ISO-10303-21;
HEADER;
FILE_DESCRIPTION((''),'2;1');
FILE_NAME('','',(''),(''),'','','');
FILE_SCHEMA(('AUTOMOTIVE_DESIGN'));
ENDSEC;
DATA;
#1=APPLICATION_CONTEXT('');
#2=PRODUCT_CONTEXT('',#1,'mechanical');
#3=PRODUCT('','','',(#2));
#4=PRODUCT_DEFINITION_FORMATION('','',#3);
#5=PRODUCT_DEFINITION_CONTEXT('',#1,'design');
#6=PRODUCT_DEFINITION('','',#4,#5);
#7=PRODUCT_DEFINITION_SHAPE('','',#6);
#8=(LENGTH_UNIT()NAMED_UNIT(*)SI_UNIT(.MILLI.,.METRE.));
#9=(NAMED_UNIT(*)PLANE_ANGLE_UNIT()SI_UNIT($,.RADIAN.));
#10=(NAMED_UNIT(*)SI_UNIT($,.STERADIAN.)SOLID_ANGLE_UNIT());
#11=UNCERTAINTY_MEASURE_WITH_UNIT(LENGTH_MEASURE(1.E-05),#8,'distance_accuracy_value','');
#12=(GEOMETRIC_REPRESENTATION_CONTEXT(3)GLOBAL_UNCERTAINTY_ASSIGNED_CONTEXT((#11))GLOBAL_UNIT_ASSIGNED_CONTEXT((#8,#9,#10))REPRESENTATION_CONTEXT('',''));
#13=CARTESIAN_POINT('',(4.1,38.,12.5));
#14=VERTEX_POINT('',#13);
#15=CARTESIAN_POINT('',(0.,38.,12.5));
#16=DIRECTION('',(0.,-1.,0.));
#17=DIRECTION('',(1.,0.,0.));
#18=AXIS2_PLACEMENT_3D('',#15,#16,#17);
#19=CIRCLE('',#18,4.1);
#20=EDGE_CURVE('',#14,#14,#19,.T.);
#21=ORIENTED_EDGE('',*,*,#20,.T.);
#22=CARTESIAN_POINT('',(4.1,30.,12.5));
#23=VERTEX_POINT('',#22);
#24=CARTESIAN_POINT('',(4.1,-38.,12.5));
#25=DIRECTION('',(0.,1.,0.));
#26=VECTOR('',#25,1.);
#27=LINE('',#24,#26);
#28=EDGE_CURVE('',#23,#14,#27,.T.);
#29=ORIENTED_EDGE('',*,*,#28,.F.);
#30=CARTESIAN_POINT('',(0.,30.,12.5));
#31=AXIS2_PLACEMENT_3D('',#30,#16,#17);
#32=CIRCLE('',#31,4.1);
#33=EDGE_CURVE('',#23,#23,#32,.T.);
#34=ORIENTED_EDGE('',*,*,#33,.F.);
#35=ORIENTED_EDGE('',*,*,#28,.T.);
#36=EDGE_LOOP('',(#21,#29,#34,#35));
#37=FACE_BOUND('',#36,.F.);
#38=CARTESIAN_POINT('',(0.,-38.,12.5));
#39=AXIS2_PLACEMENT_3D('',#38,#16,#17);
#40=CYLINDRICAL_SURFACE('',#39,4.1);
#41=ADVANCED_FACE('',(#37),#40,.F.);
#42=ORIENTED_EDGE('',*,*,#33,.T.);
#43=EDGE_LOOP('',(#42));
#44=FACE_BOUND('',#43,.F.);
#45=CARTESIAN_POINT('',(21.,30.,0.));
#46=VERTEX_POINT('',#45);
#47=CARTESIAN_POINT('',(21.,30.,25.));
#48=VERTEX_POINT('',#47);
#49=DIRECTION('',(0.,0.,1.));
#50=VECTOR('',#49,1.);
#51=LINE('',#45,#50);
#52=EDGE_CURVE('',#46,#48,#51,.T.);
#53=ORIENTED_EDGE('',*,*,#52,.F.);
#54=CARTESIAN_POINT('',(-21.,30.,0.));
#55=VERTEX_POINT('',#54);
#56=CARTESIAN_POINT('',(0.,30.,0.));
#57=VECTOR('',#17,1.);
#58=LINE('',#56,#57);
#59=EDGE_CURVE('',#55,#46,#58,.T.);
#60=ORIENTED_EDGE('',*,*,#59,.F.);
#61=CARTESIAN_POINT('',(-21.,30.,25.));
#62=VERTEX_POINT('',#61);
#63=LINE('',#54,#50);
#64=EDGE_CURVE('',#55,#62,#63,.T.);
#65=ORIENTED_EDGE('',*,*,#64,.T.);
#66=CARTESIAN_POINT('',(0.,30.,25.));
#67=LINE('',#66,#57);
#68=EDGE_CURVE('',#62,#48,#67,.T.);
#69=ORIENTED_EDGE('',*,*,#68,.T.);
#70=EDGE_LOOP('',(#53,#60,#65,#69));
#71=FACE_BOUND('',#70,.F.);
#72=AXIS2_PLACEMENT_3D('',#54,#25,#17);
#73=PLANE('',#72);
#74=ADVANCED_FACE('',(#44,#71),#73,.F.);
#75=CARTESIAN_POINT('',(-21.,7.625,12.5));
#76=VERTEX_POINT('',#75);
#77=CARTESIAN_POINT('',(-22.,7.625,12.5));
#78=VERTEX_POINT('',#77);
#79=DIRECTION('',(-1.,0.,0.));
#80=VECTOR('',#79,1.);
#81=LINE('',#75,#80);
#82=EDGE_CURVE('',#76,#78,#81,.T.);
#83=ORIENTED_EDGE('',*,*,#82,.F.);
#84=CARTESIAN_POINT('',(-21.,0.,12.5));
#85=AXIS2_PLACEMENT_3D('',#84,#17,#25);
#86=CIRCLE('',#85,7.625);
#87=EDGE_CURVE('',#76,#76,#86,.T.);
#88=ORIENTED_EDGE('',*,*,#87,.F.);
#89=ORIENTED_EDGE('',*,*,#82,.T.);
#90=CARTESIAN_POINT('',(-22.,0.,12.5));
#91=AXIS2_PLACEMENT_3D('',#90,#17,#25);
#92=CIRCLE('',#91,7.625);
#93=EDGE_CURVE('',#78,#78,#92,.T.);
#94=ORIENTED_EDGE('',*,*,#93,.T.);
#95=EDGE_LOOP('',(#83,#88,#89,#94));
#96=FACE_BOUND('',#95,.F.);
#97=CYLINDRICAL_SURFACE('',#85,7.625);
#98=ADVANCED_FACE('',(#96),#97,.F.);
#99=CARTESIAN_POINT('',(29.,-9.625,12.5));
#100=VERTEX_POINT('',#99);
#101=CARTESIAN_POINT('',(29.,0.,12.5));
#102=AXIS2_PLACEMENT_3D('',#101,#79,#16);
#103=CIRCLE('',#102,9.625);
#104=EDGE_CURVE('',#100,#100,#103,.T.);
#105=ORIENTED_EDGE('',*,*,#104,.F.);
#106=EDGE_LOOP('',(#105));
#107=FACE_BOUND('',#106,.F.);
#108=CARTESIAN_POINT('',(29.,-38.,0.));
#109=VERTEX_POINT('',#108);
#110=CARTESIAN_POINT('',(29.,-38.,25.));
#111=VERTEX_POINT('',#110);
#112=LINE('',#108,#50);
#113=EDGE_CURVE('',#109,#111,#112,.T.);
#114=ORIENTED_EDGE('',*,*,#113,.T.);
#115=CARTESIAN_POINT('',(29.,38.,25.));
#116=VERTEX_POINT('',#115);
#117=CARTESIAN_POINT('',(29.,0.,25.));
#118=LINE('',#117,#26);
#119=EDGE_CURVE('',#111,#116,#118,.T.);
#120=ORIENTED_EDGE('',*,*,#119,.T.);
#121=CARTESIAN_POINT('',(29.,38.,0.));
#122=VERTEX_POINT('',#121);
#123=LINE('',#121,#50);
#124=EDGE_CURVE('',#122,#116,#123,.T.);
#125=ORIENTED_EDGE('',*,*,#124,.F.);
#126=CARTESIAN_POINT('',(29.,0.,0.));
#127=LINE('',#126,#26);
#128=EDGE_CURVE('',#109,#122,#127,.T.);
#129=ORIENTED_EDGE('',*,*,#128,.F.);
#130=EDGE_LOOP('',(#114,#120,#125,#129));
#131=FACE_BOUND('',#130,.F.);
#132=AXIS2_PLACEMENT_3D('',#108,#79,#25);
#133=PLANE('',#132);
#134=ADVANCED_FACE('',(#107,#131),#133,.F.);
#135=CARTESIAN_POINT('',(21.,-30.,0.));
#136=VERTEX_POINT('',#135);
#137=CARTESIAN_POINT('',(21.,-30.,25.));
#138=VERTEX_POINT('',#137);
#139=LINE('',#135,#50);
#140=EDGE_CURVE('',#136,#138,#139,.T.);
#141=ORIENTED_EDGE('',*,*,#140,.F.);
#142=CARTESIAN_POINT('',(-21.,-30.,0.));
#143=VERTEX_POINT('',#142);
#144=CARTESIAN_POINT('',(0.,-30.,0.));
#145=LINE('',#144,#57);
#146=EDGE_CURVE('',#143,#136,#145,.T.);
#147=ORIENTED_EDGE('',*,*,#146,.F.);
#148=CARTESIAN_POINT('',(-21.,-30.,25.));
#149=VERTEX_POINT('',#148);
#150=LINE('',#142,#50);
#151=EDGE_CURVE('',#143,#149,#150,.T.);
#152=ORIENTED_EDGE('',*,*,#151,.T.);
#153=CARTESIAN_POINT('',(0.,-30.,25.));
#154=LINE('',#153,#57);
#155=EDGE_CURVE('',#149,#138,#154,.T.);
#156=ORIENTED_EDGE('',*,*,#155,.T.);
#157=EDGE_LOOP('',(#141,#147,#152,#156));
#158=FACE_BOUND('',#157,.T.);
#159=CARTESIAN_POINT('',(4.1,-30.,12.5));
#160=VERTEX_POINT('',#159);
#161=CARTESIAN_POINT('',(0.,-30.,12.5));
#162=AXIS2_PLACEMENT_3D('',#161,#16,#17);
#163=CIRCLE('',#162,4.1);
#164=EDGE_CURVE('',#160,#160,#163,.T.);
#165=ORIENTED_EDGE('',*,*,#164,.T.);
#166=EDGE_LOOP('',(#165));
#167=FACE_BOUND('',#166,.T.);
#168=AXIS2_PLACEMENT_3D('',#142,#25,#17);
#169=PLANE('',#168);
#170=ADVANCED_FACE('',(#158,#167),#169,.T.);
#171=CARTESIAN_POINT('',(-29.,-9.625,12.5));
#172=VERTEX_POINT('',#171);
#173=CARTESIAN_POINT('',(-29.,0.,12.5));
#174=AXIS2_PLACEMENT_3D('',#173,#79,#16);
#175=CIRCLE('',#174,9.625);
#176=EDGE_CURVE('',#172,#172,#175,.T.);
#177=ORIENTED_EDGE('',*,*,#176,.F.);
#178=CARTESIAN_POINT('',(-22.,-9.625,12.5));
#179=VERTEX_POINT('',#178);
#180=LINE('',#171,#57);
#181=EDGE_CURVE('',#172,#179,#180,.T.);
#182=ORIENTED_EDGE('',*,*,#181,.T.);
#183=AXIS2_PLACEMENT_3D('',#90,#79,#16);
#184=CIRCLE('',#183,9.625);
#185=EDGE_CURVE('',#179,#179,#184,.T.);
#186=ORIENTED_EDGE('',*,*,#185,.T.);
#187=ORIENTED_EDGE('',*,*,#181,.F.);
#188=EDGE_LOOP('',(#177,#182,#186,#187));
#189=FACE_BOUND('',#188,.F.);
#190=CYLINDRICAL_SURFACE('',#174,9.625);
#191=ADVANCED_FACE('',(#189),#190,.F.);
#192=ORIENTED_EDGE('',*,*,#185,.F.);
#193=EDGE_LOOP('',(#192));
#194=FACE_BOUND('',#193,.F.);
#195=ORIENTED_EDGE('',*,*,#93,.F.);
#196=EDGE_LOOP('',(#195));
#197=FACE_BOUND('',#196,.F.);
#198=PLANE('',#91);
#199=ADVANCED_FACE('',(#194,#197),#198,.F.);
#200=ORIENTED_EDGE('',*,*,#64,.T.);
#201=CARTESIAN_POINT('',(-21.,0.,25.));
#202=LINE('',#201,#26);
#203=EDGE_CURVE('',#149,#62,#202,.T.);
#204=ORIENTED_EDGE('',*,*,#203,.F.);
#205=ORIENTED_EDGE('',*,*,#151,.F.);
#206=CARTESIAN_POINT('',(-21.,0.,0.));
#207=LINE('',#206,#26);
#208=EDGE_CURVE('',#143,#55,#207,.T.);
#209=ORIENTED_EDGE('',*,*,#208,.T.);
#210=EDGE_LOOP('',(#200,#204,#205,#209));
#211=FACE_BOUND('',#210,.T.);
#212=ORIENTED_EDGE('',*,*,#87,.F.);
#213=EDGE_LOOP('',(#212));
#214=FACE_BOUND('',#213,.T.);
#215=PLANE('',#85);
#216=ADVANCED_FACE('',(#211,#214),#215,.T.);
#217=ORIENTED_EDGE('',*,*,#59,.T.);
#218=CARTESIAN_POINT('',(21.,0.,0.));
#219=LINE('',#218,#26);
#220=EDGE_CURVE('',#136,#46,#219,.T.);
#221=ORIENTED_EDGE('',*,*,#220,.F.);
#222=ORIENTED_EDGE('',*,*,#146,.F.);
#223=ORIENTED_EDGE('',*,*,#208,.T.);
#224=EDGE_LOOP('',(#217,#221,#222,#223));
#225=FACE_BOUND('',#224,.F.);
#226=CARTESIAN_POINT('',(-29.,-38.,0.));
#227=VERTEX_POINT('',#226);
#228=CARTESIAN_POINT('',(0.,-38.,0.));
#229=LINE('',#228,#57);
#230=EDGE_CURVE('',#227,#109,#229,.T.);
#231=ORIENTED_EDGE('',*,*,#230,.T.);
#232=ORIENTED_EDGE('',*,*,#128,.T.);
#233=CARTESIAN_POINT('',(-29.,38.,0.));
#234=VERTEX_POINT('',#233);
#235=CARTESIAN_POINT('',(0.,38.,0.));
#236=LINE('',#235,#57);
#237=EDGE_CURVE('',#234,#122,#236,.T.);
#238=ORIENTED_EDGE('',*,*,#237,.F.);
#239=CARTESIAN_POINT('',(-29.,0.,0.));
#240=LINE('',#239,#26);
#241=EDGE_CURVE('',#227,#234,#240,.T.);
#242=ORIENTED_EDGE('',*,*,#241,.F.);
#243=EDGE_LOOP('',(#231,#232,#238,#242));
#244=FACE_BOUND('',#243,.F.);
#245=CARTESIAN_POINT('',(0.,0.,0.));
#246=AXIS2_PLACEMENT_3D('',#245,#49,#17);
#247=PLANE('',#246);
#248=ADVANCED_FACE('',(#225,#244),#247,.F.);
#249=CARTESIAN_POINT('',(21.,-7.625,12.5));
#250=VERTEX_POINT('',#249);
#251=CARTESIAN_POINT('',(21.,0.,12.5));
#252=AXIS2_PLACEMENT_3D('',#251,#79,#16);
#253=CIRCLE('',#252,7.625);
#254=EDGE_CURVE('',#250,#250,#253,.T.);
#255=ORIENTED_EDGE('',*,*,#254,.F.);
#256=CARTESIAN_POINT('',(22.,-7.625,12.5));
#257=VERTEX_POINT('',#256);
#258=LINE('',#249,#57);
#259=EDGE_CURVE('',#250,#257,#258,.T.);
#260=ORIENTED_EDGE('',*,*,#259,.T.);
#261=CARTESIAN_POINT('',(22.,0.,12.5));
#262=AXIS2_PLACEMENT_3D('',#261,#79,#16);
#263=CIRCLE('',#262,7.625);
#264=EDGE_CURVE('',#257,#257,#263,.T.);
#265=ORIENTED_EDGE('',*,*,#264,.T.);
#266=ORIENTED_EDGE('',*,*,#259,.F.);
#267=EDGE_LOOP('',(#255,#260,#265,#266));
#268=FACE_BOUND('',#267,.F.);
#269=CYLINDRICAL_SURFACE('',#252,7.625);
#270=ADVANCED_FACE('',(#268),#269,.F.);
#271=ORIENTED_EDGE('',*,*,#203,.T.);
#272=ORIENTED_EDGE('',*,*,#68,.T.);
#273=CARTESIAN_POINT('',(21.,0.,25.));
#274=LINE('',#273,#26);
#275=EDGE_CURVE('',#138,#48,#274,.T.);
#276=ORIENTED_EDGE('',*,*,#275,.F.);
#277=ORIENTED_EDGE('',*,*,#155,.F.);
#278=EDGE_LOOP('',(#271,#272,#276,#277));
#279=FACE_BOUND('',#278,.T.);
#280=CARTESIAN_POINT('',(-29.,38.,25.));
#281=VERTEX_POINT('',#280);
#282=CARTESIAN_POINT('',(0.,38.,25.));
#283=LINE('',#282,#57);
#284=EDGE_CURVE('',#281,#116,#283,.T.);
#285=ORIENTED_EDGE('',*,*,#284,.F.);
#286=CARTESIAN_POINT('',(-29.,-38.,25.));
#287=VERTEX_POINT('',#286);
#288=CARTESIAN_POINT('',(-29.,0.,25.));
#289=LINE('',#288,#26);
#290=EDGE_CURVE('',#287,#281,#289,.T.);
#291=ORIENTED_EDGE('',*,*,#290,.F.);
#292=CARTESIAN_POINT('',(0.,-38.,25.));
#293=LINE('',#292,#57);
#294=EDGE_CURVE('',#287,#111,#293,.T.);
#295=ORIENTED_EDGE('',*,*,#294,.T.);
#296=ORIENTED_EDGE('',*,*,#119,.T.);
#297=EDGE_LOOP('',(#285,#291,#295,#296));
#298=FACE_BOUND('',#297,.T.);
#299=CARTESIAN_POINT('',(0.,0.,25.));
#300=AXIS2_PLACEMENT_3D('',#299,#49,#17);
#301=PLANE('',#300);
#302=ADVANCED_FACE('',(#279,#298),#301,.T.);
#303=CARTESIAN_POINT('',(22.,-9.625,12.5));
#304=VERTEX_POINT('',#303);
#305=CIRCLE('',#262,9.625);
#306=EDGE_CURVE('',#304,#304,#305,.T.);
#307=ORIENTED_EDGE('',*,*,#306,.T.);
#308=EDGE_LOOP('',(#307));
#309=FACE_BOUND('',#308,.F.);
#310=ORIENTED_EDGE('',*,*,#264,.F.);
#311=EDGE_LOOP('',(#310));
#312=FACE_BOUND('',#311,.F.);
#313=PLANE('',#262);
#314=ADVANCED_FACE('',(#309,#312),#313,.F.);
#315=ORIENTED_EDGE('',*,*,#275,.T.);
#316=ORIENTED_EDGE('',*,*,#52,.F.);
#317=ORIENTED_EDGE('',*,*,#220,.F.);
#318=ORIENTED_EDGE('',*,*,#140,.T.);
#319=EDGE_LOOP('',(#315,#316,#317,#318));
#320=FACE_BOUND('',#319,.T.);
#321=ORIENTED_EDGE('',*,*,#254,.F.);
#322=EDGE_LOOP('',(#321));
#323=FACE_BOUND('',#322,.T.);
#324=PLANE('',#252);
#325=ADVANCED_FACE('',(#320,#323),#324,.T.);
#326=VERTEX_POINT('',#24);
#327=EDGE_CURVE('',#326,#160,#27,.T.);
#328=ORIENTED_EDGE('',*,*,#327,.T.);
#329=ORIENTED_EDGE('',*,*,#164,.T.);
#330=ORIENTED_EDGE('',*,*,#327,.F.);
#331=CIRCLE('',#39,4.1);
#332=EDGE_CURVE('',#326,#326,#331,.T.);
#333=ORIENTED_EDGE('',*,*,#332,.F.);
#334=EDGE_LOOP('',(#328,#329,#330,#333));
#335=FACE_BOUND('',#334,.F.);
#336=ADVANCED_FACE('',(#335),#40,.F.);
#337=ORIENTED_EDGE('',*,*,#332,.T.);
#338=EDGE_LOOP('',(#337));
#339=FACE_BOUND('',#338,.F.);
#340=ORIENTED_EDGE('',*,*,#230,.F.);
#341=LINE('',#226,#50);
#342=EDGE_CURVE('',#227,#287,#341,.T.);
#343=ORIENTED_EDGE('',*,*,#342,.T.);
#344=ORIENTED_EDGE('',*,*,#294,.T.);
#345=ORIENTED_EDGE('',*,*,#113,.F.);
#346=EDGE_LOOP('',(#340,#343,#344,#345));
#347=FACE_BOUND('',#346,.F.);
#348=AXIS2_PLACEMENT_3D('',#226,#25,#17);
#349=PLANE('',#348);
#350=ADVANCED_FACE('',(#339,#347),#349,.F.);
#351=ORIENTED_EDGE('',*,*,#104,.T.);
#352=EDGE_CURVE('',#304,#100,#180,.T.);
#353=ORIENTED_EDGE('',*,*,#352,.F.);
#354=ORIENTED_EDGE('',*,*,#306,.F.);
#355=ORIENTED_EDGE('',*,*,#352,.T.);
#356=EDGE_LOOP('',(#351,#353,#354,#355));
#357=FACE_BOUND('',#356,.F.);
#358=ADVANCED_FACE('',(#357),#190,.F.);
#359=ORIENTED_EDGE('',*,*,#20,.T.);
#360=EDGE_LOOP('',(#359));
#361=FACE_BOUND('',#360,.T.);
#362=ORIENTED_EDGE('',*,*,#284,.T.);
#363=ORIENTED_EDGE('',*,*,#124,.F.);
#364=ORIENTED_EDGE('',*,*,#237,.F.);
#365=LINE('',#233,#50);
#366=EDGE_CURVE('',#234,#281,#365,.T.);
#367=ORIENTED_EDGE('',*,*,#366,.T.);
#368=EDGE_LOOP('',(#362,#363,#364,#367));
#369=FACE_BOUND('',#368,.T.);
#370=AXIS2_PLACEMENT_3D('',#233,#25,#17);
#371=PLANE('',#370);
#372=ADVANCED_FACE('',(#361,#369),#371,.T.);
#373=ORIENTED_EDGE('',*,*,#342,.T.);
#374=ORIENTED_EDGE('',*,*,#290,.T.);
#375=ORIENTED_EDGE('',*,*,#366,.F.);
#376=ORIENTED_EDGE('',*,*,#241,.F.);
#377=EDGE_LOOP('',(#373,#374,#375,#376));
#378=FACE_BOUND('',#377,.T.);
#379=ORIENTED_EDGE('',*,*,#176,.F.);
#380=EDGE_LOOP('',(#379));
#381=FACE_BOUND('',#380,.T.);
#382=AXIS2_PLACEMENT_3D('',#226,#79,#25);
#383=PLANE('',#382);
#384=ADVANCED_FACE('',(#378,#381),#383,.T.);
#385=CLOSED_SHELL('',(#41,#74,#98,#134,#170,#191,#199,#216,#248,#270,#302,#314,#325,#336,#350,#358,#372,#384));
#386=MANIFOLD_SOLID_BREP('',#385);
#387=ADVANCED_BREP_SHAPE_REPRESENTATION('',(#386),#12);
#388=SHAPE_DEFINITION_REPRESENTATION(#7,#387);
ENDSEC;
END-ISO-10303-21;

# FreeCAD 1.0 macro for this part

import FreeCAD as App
import Part
import Sketcher

V = App.Vector

doc = App.newDocument("Part")
body = doc.addObject("PartDesign::Body", "Body")

# Sketch on XY plane
sketch1 = body.newObject("Sketcher::SketchObject", "Sketch")
sketch1.AttachmentSupport = (doc.getObject("XY_Plane"), [""])
sketch1.MapMode = "FlatFace"
sketch1.addGeometry([
    Part.LineSegment(V(-29, 38, 0), V(-29, -38, 0)),  # 0
    Part.LineSegment(V(-29, -38, 0), V(29, -38, 0)),  # 1
    Part.LineSegment(V(29, -38, 0), V(29, 38, 0)),  # 2
    Part.LineSegment(V(29, 38, 0), V(-29, 38, 0)),  # 3
    Part.LineSegment(V(21, -30, 0), V(-21, -30, 0)),  # 4
    Part.LineSegment(V(-21, -30, 0), V(-21, 30, 0)),  # 5
    Part.LineSegment(V(-21, 30, 0), V(21, 30, 0)),  # 6
    Part.LineSegment(V(21, 30, 0), V(21, -30, 0)),  # 7
], False)
sketch1.addConstraint([
    Sketcher.Constraint("Coincident", 0, 2, 1, 1),
    Sketcher.Constraint("Coincident", 1, 2, 2, 1),
    Sketcher.Constraint("Coincident", 2, 2, 3, 1),
    Sketcher.Constraint("Coincident", 3, 2, 0, 1),
    Sketcher.Constraint("Coincident", 4, 2, 5, 1),
    Sketcher.Constraint("Coincident", 5, 2, 6, 1),
    Sketcher.Constraint("Coincident", 6, 2, 7, 1),
    Sketcher.Constraint("Coincident", 7, 2, 4, 1),
    Sketcher.Constraint("Vertical", 0),
    Sketcher.Constraint("Horizontal", 1),
    Sketcher.Constraint("Vertical", 2),
    Sketcher.Constraint("Horizontal", 3),
    Sketcher.Constraint("Horizontal", 4),
    Sketcher.Constraint("Vertical", 5),
    Sketcher.Constraint("Horizontal", 6),
    Sketcher.Constraint("Vertical", 7),
    Sketcher.Constraint("Symmetric", 0, 2, 2, 2, -1, 1),
    Sketcher.Constraint("Symmetric", 4, 2, 6, 2, -1, 1),
    Sketcher.Constraint("DistanceX", 1, 1, 1, 2, 58.0),
    Sketcher.Constraint("DistanceX", 4, 2, 4, 1, 42.0),
    Sketcher.Constraint("DistanceY", 0, 2, 0, 1, 76.0),
    Sketcher.Constraint("DistanceY", 5, 1, 5, 2, 60.0),
])
pad1 = body.newObject("PartDesign::Pad", "Pad")
pad1.Profile = sketch1
pad1.Length = 25

# Sketch on YZ plane
sketch2 = body.newObject("Sketcher::SketchObject", "Sketch001")
sketch2.AttachmentSupport = (doc.getObject("YZ_Plane"), [""])
sketch2.MapMode = "FlatFace"
sketch2.AttachmentOffset = App.Placement(V(0, 0, -29), App.Rotation())
sketch2.addGeometry(Part.Circle(V(0, 12, 0), V(0, 0, 1), 10), False)
sketch2.addConstraint([
    Sketcher.Constraint("PointOnObject", 0, 3, -2),
    Sketcher.Constraint("Diameter", 0, 19.25),
    Sketcher.Constraint("DistanceY", -1, 1, 0, 3, 12.5),
])
pocket1 = body.newObject("PartDesign::Pocket", "Pocket")
pocket1.Profile = sketch2
pocket1.Type = "ThroughAll"
pocket1.Reversed = True

# Sketch on XZ plane
sketch3 = body.newObject("Sketcher::SketchObject", "Sketch002")
sketch3.AttachmentSupport = (doc.getObject("XZ_Plane"), [""])
sketch3.MapMode = "FlatFace"
sketch3.AttachmentOffset = App.Placement(V(0, 0, 38), App.Rotation())
sketch3.addGeometry(Part.Circle(V(0, 12.5, 0), V(0, 0, 1), 4.1), False)
sketch3.addConstraint([
    Sketcher.Constraint("PointOnObject", 0, 3, -2),
    Sketcher.Constraint("Diameter", 0, 8.2),
    Sketcher.Constraint("DistanceY", -1, 1, 0, 3, 12.5),
])
pocket2 = body.newObject("PartDesign::Pocket", "Pocket001")
pocket2.Profile = sketch3
pocket2.Type = "ThroughAll"

# Sketch on YZ plane
sketch4 = body.newObject("Sketcher::SketchObject", "Sketch003")
sketch4.AttachmentSupport = (doc.getObject("YZ_Plane"), [""])
sketch4.MapMode = "FlatFace"
sketch4.AttachmentOffset = App.Placement(V(0, 0, 21), App.Rotation())
sketch4.addGeometry([
    Part.Circle(V(0, 12, 0), V(0, 0, 1), 10),
    Part.Circle(V(0, 12, 0), V(0, 0, 1), 8),
], False)
sketch4.addConstraint([
    Sketcher.Constraint("Coincident", 1, 3, 0, 3),
    Sketcher.Constraint("PointOnObject", 0, 3, -2),
    Sketcher.Constraint("Diameter", 0, 19.25),
    Sketcher.Constraint("Diameter", 1, 15.25),
    Sketcher.Constraint("DistanceY", -1, 1, 0, 3, 12.5),
])
pad2 = body.newObject("PartDesign::Pad", "Pad001")
pad2.Profile = sketch4
pad2.Length = 1

# Sketch on YZ plane
sketch5 = body.newObject("Sketcher::SketchObject", "Sketch004")
sketch5.AttachmentSupport = (doc.getObject("YZ_Plane"), [""])
sketch5.MapMode = "FlatFace"
sketch5.AttachmentOffset = App.Placement(V(0, 0, -21), App.Rotation())
sketch5.addGeometry([
    Part.Circle(V(0, 12, 0), V(0, 0, 1), 10),
    Part.Circle(V(0, 12, 0), V(0, 0, 1), 8),
], False)
sketch5.addConstraint([
    Sketcher.Constraint("Coincident", 1, 3, 0, 3),
    Sketcher.Constraint("PointOnObject", 0, 3, -2),
    Sketcher.Constraint("Diameter", 0, 19.25),
    Sketcher.Constraint("Diameter", 1, 15.25),
    Sketcher.Constraint("DistanceY", -1, 1, 0, 3, 12.5),
])
pad3 = body.newObject("PartDesign::Pad", "Pad002")
pad3.Profile = sketch5
pad3.Length = 1
pad3.Reversed = True

doc.recompute()
